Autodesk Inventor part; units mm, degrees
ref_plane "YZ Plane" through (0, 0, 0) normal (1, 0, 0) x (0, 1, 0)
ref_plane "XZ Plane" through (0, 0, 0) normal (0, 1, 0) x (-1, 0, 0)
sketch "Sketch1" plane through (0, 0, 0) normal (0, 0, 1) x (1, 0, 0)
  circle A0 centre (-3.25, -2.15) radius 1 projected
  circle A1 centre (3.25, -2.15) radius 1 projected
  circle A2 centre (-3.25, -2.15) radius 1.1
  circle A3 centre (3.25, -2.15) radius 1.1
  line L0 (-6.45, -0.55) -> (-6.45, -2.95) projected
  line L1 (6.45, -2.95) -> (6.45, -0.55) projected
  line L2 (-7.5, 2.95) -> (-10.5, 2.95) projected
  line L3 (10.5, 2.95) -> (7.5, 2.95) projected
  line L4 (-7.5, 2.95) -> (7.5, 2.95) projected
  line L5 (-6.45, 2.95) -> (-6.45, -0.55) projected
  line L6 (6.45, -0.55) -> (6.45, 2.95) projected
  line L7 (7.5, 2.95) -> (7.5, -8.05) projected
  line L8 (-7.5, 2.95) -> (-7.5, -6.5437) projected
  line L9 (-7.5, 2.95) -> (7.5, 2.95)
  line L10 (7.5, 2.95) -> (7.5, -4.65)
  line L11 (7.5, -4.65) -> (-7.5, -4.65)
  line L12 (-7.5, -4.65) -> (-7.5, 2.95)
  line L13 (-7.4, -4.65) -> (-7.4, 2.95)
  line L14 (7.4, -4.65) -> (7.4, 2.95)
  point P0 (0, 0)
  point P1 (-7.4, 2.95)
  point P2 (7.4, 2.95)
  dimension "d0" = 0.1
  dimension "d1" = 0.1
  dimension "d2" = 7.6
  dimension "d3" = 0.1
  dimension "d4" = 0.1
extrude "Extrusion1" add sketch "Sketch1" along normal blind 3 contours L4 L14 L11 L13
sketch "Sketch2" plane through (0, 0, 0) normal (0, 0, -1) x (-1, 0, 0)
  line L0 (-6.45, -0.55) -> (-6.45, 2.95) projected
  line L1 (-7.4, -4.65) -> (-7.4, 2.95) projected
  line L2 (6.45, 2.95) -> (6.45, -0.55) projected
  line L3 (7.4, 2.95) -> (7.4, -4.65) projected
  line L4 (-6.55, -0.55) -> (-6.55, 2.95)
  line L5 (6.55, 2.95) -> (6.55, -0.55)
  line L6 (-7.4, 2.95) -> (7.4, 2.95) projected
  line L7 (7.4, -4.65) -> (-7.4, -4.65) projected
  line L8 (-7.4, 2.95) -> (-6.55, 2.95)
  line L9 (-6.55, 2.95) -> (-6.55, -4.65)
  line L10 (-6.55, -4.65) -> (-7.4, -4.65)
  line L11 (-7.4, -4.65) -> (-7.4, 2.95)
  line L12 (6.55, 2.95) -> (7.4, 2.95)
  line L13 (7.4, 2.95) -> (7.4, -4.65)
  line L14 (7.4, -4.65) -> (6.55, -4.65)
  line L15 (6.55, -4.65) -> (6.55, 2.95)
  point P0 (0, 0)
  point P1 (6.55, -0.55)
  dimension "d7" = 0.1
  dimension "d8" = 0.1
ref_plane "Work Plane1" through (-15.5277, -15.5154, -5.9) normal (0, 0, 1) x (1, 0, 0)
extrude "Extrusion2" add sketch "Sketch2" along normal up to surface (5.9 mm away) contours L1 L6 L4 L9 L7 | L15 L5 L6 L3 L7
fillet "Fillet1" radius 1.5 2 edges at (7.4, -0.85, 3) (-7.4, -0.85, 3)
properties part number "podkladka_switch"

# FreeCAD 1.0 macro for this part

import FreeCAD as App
import Part
import Sketcher
from FreeCAD import Vector
Q = App.Units.Quantity


def edges_at(feature, points):
    """Names of the edges that pass closest to the given points."""
    edges = feature.Shape.Edges
    near = lambda p: min(range(len(edges)), key=lambda i: edges[i].distToShape(Part.Vertex(*p))[0])
    return sorted({f"Edge{near(p) + 1}" for p in points})

doc = App.newDocument("Part")
params = doc.addObject("Spreadsheet::Sheet", "Params")
for row, (alias, value) in enumerate([
    ("sketch1_height", "7.6 mm"),
    ("sketch1_diameter", "2.2 mm"),
    ("sketch1_width", "14.8 mm"),
    ("pad1_length", "3 mm"),
    ("sketch2_height", "7.6 mm"),
    ("sketch2_width", "0.85 mm"),
    ("pad2_length", "5.9 mm"),
    ("fillet_radius", "1.5 mm"),
], start=1):
    params.set(f"A{row}", alias)
    params.set(f"B{row}", "=" + value)
    params.setAlias(f"B{row}", alias)

body = doc.addObject("PartDesign::Body", "Body")

# Sketch on XY plane
sketch1 = body.newObject("Sketcher::SketchObject", "Sketch")
sketch1.AttachmentSupport = (doc.getObject("XY_Plane"), [""])
sketch1.MapMode = "FlatFace"
sketch1.addGeometry([
    Part.LineSegment(Vector(7.4, 3, 0), Vector(-7.4, 3, 0)),  # 0
    Part.LineSegment(Vector(-7.4, 3, 0), Vector(-7.4, -4.7, 0)),  # 1
    Part.LineSegment(Vector(-7.4, -4.7, 0), Vector(7.4, -4.7, 0)),  # 2
    Part.LineSegment(Vector(7.4, -4.7, 0), Vector(7.4, 3, 0)),  # 3
    Part.Circle(Vector(-3.2, -2.1, 0), Vector(0, 0, 1), 1.1),  # 4
    Part.Circle(Vector(3.2, -2.1, 0), Vector(0, 0, 1), 1.1),  # 5
], False)
sketch1.addConstraint([
    Sketcher.Constraint("Coincident", 0, 2, 1, 1),
    Sketcher.Constraint("Coincident", 1, 2, 2, 1),
    Sketcher.Constraint("Coincident", 2, 2, 3, 1),
    Sketcher.Constraint("Coincident", 3, 2, 0, 1),
    Sketcher.Constraint("Horizontal", 0),
    Sketcher.Constraint("Vertical", 1),
    Sketcher.Constraint("Horizontal", 2),
    Sketcher.Constraint("Vertical", 3),
    Sketcher.Constraint("Equal", 4, 5),
    Sketcher.Constraint("Symmetric", 4, 3, 5, 3, -2),
    Sketcher.Constraint("DistanceY", 1, 2, 1, 1, Q("7.6 mm")),
    Sketcher.Constraint("Diameter", 4, Q("2.2 mm")),
    Sketcher.Constraint("DistanceX", 0, 2, 0, 1, Q("14.8 mm")),
    Sketcher.Constraint("DistanceX", 0, 2, -1, 1, Q("7.4 mm")),
    Sketcher.Constraint("DistanceX", 4, 3, 5, 3, Q("6.5 mm")),
    Sketcher.Constraint("DistanceY", 4, 3, 0, 2, Q("5.1 mm")),
    Sketcher.Constraint("DistanceY", 4, 3, -1, 1, Q("2.15 mm")),
])
sketch1.setExpression("Constraints[10]", "Params.sketch1_height")
sketch1.setExpression("Constraints[11]", "Params.sketch1_diameter")
sketch1.setExpression("Constraints[12]", "Params.sketch1_width")
pad1 = body.newObject("PartDesign::Pad", "Pad")
pad1.Profile = sketch1
pad1.setExpression("Length", "Params.pad1_length")

# Sketch on XY plane
sketch2 = body.newObject("Sketcher::SketchObject", "Sketch001")
sketch2.AttachmentSupport = (doc.getObject("XY_Plane"), [""])
sketch2.MapMode = "FlatFace"
sketch2.addGeometry([
    Part.LineSegment(Vector(7.4, 3, 0), Vector(7.4, -4.7, 0)),  # 0
    Part.LineSegment(Vector(7.4, -4.7, 0), Vector(6.5, -4.7, 0)),  # 1
    Part.LineSegment(Vector(6.5, -4.7, 0), Vector(6.5, 3, 0)),  # 2
    Part.LineSegment(Vector(6.5, 3, 0), Vector(7.4, 3, 0)),  # 3
    Part.LineSegment(Vector(-6.5, 3, 0), Vector(-6.5, -4.7, 0)),  # 4
    Part.LineSegment(Vector(-6.5, -4.7, 0), Vector(-7.4, -4.7, 0)),  # 5
    Part.LineSegment(Vector(-7.4, -4.7, 0), Vector(-7.4, 3, 0)),  # 6
    Part.LineSegment(Vector(-7.4, 3, 0), Vector(-6.5, 3, 0)),  # 7
], False)
sketch2.addConstraint([
    Sketcher.Constraint("Coincident", 0, 2, 1, 1),
    Sketcher.Constraint("Coincident", 1, 2, 2, 1),
    Sketcher.Constraint("Coincident", 2, 2, 3, 1),
    Sketcher.Constraint("Coincident", 3, 2, 0, 1),
    Sketcher.Constraint("Coincident", 4, 2, 5, 1),
    Sketcher.Constraint("Coincident", 5, 2, 6, 1),
    Sketcher.Constraint("Coincident", 6, 2, 7, 1),
    Sketcher.Constraint("Coincident", 7, 2, 4, 1),
    Sketcher.Constraint("Vertical", 0),
    Sketcher.Constraint("Horizontal", 1),
    Sketcher.Constraint("Vertical", 2),
    Sketcher.Constraint("Horizontal", 3),
    Sketcher.Constraint("Vertical", 4),
    Sketcher.Constraint("Horizontal", 5),
    Sketcher.Constraint("Vertical", 6),
    Sketcher.Constraint("Horizontal", 7),
    Sketcher.Constraint("Symmetric", 1, 2, 4, 2, -2),
    Sketcher.Constraint("Symmetric", 3, 2, 6, 2, -2),
    Sketcher.Constraint("DistanceY", 0, 2, 0, 1, Q("7.6 mm")),
    Sketcher.Constraint("DistanceX", 1, 2, 1, 1, Q("0.85 mm")),
    Sketcher.Constraint("DistanceX", -1, 1, 0, 2, Q("7.4 mm")),
    Sketcher.Constraint("DistanceY", 0, 2, -1, 1, Q("4.65 mm")),
])
sketch2.setExpression("Constraints[18]", "Params.sketch2_height")
sketch2.setExpression("Constraints[19]", "Params.sketch2_width")
pad2 = body.newObject("PartDesign::Pad", "Pad001")
pad2.Profile = sketch2
pad2.setExpression("Length", "Params.pad2_length")
pad2.Reversed = True
doc.recompute()

fillet = body.newObject("PartDesign::Fillet", "Fillet")
fillet.Base = (pad2, edges_at(pad2, [(7.4, -0.85, 3), (-7.4, -0.85, 3)]))
fillet.setExpression("Radius", "Params.fillet_radius")

doc.recompute()
